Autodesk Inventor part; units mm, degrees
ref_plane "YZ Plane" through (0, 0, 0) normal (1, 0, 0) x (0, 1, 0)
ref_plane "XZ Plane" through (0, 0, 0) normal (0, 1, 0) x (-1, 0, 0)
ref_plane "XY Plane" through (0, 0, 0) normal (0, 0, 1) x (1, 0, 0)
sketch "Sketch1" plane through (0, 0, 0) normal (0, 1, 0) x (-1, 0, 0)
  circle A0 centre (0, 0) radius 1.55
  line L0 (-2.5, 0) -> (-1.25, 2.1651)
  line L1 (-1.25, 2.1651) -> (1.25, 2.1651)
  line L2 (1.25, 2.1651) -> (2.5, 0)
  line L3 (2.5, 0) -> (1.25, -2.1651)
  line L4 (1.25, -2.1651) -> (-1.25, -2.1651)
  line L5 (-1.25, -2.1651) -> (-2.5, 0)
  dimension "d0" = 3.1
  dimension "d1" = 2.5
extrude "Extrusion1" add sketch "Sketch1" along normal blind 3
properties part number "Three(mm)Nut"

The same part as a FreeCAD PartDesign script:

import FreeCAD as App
import Part
import Sketcher
from FreeCAD import Vector
Q = App.Units.Quantity


def add_polygon(sketch, points):
    """Adds a closed chain of lines whose ends are joined by coincident constraints."""
    first, n = sketch.GeometryCount, len(points)
    for a, b in zip(points, points[1:] + points[:1]):
        sketch.addGeometry(Part.LineSegment(App.Vector(*a, 0), App.Vector(*b, 0)), False)
    for i in range(n):
        sketch.addConstraint(Sketcher.Constraint("Coincident", first + i, 2, first + (i + 1) % n, 1))

doc = App.newDocument("Part")
body = doc.addObject("PartDesign::Body", "Body")

# Sketch on XZ plane
sketch1 = doc.addObject("Sketcher::SketchObject", "Sketch")
body.addObject(sketch1)
sketch1.AttachmentSupport = (doc.XZ_Plane, [""])
sketch1.MapMode = "FlatFace"
add_polygon(sketch1, [(1.25, 2.1651), (2.5, 0), (1.25, -2.1651), (-1.25, -2.1651), (-2.5, 0), (-1.25, 2.1651)])  # lines 0-5
sketch1.addGeometry(Part.Circle(Vector(0, 0, 0), Vector(0, 0, 1), 1.55), False)  # 6
sketch1.addConstraint(Sketcher.Constraint("Horizontal", 2))
sketch1.addConstraint(Sketcher.Constraint("Horizontal", 5))
sketch1.addConstraint(Sketcher.Constraint("Coincident", 6, 3, -1, 1))
sketch1.addConstraint(Sketcher.Constraint("Symmetric", 0, 2, 3, 2, -1, 1))
sketch1.addConstraint(Sketcher.Constraint("Symmetric", 1, 2, 4, 2, -1, 1))
sketch1.addConstraint(Sketcher.Constraint("PointOnObject", 0, 2, -1))
sketch1.addConstraint(Sketcher.Constraint("Parallel", 0, 3))
sketch1.addConstraint(Sketcher.Constraint("Vertical", 2, 2, 4, 2))
sketch1.addConstraint(Sketcher.Constraint("Diameter", 6, Q("3.1 mm")))
sketch1.addConstraint(Sketcher.Constraint("DistanceX", 2, 2, 2, 1, Q("2.5 mm")))
sketch1.addConstraint(Sketcher.Constraint("Distance", 0, Q("2.5 mm")))
sketch1.addConstraint(Sketcher.Constraint("DistanceX", -1, 1, 0, 2, Q("2.5 mm")))
pad1 = doc.addObject("PartDesign::Pad", "Pad")
body.addObject(pad1)
pad1.Profile = sketch1
pad1.Length = 3
pad1.Reversed = True

doc.recompute()
